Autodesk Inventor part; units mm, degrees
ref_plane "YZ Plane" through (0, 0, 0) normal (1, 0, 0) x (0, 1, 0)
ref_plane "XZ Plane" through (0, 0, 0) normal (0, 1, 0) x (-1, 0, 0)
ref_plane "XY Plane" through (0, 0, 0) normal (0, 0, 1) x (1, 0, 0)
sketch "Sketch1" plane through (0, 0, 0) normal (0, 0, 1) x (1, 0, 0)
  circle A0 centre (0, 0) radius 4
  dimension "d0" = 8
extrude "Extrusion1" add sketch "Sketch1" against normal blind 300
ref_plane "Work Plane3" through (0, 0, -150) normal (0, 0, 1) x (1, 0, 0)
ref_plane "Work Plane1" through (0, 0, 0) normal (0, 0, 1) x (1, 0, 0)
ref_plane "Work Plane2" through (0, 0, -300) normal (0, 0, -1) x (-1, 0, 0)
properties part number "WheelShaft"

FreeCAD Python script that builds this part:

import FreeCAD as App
import Part
import Sketcher

V = App.Vector
Q = App.Units.Quantity

doc = App.newDocument("Part")
params = doc.addObject("Spreadsheet::Sheet", "Params")
for row, (alias, value) in enumerate([
    ("sketch1_diameter", "8 mm"),
    ("pad1_length", "300 mm"),
], start=1):
    params.set(f"A{row}", alias)
    params.set(f"B{row}", "=" + value)
    params.setAlias(f"B{row}", alias)

body = doc.addObject("PartDesign::Body", "Body")

sketch1 = body.newObject("Sketcher::SketchObject", "Sketch")
sketch1.AttachmentSupport = (doc.getObject("XY_Plane"), [""])
sketch1.MapMode = "FlatFace"
sketch1.addGeometry(Part.Circle(V(0, 0, 0), V(0, 0, 1), 4), False)
sketch1.addConstraint(Sketcher.Constraint("Coincident", 0, 3, -1, 1))
sketch1.addConstraint(Sketcher.Constraint("Diameter", 0, Q("8 mm")))
sketch1.setExpression("Constraints[1]", "Params.sketch1_diameter")
pad1 = body.newObject("PartDesign::Pad", "Pad")
pad1.Profile = sketch1
pad1.setExpression("Length", "Params.pad1_length")
pad1.Reversed = True

doc.recompute()
